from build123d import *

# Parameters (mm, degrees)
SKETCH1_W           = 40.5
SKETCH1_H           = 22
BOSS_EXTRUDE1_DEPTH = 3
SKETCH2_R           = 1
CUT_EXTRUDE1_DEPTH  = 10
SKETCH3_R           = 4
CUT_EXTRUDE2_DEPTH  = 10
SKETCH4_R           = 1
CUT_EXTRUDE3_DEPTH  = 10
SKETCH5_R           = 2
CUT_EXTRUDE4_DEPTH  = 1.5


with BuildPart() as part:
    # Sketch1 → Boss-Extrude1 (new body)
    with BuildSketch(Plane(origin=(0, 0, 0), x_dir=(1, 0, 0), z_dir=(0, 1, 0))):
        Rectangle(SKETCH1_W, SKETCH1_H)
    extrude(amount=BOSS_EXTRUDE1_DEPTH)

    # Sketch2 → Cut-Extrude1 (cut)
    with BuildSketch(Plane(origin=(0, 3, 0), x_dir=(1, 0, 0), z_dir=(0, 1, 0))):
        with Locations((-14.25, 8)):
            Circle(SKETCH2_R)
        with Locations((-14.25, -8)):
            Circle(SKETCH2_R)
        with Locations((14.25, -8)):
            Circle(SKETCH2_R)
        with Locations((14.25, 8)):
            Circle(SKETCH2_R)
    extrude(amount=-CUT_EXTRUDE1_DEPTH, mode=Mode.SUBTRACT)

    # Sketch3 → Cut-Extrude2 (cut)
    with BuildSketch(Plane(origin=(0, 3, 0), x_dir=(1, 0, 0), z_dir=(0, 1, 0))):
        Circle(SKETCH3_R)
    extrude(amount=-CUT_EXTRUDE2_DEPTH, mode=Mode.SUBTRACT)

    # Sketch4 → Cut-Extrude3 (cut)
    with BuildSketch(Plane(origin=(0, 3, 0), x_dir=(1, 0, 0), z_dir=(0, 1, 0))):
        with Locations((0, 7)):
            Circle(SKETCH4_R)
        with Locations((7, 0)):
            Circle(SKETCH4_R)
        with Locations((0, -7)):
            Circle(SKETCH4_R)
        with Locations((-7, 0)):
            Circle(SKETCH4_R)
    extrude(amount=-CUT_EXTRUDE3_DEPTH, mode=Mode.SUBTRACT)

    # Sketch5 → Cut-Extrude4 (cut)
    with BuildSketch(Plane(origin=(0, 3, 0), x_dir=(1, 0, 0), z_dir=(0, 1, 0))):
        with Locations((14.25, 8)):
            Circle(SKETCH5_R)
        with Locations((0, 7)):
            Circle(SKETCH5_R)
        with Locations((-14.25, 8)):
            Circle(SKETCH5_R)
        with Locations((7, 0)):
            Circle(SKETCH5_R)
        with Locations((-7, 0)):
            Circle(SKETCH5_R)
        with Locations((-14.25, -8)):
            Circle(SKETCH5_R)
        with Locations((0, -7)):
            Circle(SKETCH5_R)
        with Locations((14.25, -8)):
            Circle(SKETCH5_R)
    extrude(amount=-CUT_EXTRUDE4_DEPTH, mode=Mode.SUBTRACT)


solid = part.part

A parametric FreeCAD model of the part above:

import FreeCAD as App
import Part
import Sketcher

V = App.Vector
Q = App.Units.Quantity

doc = App.newDocument("Part")
body = doc.addObject("PartDesign::Body", "Body")

sketch1 = body.newObject("Sketcher::SketchObject", "Sketch")
sketch1.AttachmentSupport = (doc.getObject("XZ_Plane"), [""])
sketch1.MapMode = "FlatFace"
sketch1.addGeometry([
    Part.LineSegment(V(-20, -11, 0), V(-20, 11, 0)),
    Part.LineSegment(V(-20, 11, 0), V(20, 11, 0)),
    Part.LineSegment(V(20, 11, 0), V(20, -11, 0)),
    Part.LineSegment(V(20, -11, 0), V(-20, -11, 0)),
], False)
sketch1.addConstraint([
    Sketcher.Constraint("Coincident", 0, 2, 1, 1),
    Sketcher.Constraint("Coincident", 1, 2, 2, 1),
    Sketcher.Constraint("Coincident", 2, 2, 3, 1),
    Sketcher.Constraint("Coincident", 3, 2, 0, 1),
    Sketcher.Constraint("Vertical", 0),
    Sketcher.Constraint("Horizontal", 1),
    Sketcher.Constraint("Vertical", 2),
    Sketcher.Constraint("Horizontal", 3),
    Sketcher.Constraint("Symmetric", 0, 2, 2, 2, -1, 1),
    Sketcher.Constraint("DistanceY", 0, 1, 0, 2, Q("22 mm")),
    Sketcher.Constraint("DistanceX", 1, 1, 1, 2, Q("40.5 mm")),
])
pad1 = body.newObject("PartDesign::Pad", "Pad")
pad1.Profile = sketch1
pad1.Length = 3
pad1.Reversed = True

sketch2 = body.newObject("Sketcher::SketchObject", "Sketch001")
sketch2.AttachmentSupport = (doc.getObject("XZ_Plane"), [""])
sketch2.MapMode = "FlatFace"
sketch2.AttachmentOffset = App.Placement(V(0, 0, -3), App.Rotation())
sketch2.addGeometry([
    Part.Circle(V(-14.2, -8, 0), V(0, 0, 1), 1),
    Part.Circle(V(-14.2, 8, 0), V(0, 0, 1), 1),
    Part.Circle(V(14.2, 8, 0), V(0, 0, 1), 1),
    Part.Circle(V(14.2, -8, 0), V(0, 0, 1), 1),
], False)
sketch2.addConstraint([
    Sketcher.Constraint("Equal", 0, 1),
    Sketcher.Constraint("Equal", 1, 2),
    Sketcher.Constraint("Equal", 2, 3),
    Sketcher.Constraint("Symmetric", 0, 3, 2, 3, -1, 1),
    Sketcher.Constraint("Symmetric", 1, 3, 3, 3, -1, 1),
    Sketcher.Constraint("Symmetric", 1, 3, 2, 3, -2),
    Sketcher.Constraint("Diameter", 0, Q("2 mm")),
    Sketcher.Constraint("DistanceY", 0, 3, -1, 1, Q("8 mm")),
    Sketcher.Constraint("DistanceX", 1, 3, 2, 3, Q("28.5 mm")),
])
pocket1 = body.newObject("PartDesign::Pocket", "Pocket")
pocket1.Profile = sketch2
pocket1.Length = 10
pocket1.Reversed = True

sketch3 = body.newObject("Sketcher::SketchObject", "Sketch002")
sketch3.AttachmentSupport = (doc.getObject("XZ_Plane"), [""])
sketch3.MapMode = "FlatFace"
sketch3.AttachmentOffset = App.Placement(V(0, 0, -3), App.Rotation())
sketch3.addGeometry(Part.Circle(V(0, 0, 0), V(0, 0, 1), 4), False)
sketch3.addConstraint([
    Sketcher.Constraint("Coincident", 0, 3, -1, 1),
    Sketcher.Constraint("Diameter", 0, Q("8 mm")),
])
pocket2 = body.newObject("PartDesign::Pocket", "Pocket001")
pocket2.Profile = sketch3
pocket2.Length = 10
pocket2.Reversed = True

sketch4 = body.newObject("Sketcher::SketchObject", "Sketch003")
sketch4.AttachmentSupport = (doc.getObject("XZ_Plane"), [""])
sketch4.MapMode = "FlatFace"
sketch4.AttachmentOffset = App.Placement(V(0, 0, -3), App.Rotation())
sketch4.addGeometry([
    Part.Circle(V(0, -7, 0), V(0, 0, 1), 1),
    Part.Circle(V(7, 0, 0), V(0, 0, 1), 1),
    Part.Circle(V(0, 7, 0), V(0, 0, 1), 1),
    Part.Circle(V(-7, 0, 0), V(0, 0, 1), 1),
], False)
sketch4.addConstraint([
    Sketcher.Constraint("Equal", 0, 1),
    Sketcher.Constraint("Equal", 1, 2),
    Sketcher.Constraint("Equal", 2, 3),
    Sketcher.Constraint("Symmetric", 0, 3, 2, 3, -1, 1),
    Sketcher.Constraint("Symmetric", 1, 3, 3, 3, -1, 1),
    Sketcher.Constraint("PointOnObject", 0, 3, -2),
    Sketcher.Constraint("PointOnObject", 1, 3, -1),
    Sketcher.Constraint("Diameter", 0, Q("2 mm")),
    Sketcher.Constraint("DistanceY", 0, 3, -1, 1, Q("7 mm")),
    Sketcher.Constraint("DistanceX", -1, 1, 1, 3, Q("7 mm")),
])
pocket3 = body.newObject("PartDesign::Pocket", "Pocket002")
pocket3.Profile = sketch4
pocket3.Length = 10
pocket3.Reversed = True

sketch5 = body.newObject("Sketcher::SketchObject", "Sketch004")
sketch5.AttachmentSupport = (doc.getObject("XZ_Plane"), [""])
sketch5.MapMode = "FlatFace"
sketch5.AttachmentOffset = App.Placement(V(0, 0, -3), App.Rotation())
sketch5.addGeometry([
    Part.Circle(V(14.2, -8, 0), V(0, 0, 1), 2),
    Part.Circle(V(0, -7, 0), V(0, 0, 1), 2),
    Part.Circle(V(-14.2, -8, 0), V(0, 0, 1), 2),
    Part.Circle(V(7, 0, 0), V(0, 0, 1), 2),
    Part.Circle(V(-7, 0, 0), V(0, 0, 1), 2),
    Part.Circle(V(-14.2, 8, 0), V(0, 0, 1), 2),
    Part.Circle(V(0, 7, 0), V(0, 0, 1), 2),
    Part.Circle(V(14.2, 8, 0), V(0, 0, 1), 2),
], False)
sketch5.addConstraint([
    Sketcher.Constraint("Equal", 0, 1),
    Sketcher.Constraint("Equal", 1, 2),
    Sketcher.Constraint("Equal", 2, 3),
    Sketcher.Constraint("Equal", 3, 4),
    Sketcher.Constraint("Equal", 4, 5),
    Sketcher.Constraint("Equal", 5, 6),
    Sketcher.Constraint("Equal", 6, 7),
    Sketcher.Constraint("Symmetric", 3, 3, 4, 3, -1, 1),
    Sketcher.Constraint("Symmetric", 0, 3, 5, 3, -1, 1),
    Sketcher.Constraint("Symmetric", 1, 3, 6, 3, -1, 1),
    Sketcher.Constraint("Symmetric", 2, 3, 7, 3, -1, 1),
    Sketcher.Constraint("Symmetric", 0, 3, 2, 3, -2),
    Sketcher.Constraint("PointOnObject", 1, 3, -2),
    Sketcher.Constraint("PointOnObject", 3, 3, -1),
    Sketcher.Constraint("Diameter", 0, Q("4 mm")),
    Sketcher.Constraint("DistanceY", 0, 3, -1, 1, Q("8 mm")),
    Sketcher.Constraint("DistanceY", 1, 3, -1, 1, Q("7 mm")),
    Sketcher.Constraint("DistanceX", -1, 1, 3, 3, Q("7 mm")),
    Sketcher.Constraint("DistanceX", 2, 3, 0, 3, Q("28.5 mm")),
])
pocket4 = body.newObject("PartDesign::Pocket", "Pocket003")
pocket4.Profile = sketch5
pocket4.Length = 1.5
pocket4.Reversed = True

doc.recompute()
